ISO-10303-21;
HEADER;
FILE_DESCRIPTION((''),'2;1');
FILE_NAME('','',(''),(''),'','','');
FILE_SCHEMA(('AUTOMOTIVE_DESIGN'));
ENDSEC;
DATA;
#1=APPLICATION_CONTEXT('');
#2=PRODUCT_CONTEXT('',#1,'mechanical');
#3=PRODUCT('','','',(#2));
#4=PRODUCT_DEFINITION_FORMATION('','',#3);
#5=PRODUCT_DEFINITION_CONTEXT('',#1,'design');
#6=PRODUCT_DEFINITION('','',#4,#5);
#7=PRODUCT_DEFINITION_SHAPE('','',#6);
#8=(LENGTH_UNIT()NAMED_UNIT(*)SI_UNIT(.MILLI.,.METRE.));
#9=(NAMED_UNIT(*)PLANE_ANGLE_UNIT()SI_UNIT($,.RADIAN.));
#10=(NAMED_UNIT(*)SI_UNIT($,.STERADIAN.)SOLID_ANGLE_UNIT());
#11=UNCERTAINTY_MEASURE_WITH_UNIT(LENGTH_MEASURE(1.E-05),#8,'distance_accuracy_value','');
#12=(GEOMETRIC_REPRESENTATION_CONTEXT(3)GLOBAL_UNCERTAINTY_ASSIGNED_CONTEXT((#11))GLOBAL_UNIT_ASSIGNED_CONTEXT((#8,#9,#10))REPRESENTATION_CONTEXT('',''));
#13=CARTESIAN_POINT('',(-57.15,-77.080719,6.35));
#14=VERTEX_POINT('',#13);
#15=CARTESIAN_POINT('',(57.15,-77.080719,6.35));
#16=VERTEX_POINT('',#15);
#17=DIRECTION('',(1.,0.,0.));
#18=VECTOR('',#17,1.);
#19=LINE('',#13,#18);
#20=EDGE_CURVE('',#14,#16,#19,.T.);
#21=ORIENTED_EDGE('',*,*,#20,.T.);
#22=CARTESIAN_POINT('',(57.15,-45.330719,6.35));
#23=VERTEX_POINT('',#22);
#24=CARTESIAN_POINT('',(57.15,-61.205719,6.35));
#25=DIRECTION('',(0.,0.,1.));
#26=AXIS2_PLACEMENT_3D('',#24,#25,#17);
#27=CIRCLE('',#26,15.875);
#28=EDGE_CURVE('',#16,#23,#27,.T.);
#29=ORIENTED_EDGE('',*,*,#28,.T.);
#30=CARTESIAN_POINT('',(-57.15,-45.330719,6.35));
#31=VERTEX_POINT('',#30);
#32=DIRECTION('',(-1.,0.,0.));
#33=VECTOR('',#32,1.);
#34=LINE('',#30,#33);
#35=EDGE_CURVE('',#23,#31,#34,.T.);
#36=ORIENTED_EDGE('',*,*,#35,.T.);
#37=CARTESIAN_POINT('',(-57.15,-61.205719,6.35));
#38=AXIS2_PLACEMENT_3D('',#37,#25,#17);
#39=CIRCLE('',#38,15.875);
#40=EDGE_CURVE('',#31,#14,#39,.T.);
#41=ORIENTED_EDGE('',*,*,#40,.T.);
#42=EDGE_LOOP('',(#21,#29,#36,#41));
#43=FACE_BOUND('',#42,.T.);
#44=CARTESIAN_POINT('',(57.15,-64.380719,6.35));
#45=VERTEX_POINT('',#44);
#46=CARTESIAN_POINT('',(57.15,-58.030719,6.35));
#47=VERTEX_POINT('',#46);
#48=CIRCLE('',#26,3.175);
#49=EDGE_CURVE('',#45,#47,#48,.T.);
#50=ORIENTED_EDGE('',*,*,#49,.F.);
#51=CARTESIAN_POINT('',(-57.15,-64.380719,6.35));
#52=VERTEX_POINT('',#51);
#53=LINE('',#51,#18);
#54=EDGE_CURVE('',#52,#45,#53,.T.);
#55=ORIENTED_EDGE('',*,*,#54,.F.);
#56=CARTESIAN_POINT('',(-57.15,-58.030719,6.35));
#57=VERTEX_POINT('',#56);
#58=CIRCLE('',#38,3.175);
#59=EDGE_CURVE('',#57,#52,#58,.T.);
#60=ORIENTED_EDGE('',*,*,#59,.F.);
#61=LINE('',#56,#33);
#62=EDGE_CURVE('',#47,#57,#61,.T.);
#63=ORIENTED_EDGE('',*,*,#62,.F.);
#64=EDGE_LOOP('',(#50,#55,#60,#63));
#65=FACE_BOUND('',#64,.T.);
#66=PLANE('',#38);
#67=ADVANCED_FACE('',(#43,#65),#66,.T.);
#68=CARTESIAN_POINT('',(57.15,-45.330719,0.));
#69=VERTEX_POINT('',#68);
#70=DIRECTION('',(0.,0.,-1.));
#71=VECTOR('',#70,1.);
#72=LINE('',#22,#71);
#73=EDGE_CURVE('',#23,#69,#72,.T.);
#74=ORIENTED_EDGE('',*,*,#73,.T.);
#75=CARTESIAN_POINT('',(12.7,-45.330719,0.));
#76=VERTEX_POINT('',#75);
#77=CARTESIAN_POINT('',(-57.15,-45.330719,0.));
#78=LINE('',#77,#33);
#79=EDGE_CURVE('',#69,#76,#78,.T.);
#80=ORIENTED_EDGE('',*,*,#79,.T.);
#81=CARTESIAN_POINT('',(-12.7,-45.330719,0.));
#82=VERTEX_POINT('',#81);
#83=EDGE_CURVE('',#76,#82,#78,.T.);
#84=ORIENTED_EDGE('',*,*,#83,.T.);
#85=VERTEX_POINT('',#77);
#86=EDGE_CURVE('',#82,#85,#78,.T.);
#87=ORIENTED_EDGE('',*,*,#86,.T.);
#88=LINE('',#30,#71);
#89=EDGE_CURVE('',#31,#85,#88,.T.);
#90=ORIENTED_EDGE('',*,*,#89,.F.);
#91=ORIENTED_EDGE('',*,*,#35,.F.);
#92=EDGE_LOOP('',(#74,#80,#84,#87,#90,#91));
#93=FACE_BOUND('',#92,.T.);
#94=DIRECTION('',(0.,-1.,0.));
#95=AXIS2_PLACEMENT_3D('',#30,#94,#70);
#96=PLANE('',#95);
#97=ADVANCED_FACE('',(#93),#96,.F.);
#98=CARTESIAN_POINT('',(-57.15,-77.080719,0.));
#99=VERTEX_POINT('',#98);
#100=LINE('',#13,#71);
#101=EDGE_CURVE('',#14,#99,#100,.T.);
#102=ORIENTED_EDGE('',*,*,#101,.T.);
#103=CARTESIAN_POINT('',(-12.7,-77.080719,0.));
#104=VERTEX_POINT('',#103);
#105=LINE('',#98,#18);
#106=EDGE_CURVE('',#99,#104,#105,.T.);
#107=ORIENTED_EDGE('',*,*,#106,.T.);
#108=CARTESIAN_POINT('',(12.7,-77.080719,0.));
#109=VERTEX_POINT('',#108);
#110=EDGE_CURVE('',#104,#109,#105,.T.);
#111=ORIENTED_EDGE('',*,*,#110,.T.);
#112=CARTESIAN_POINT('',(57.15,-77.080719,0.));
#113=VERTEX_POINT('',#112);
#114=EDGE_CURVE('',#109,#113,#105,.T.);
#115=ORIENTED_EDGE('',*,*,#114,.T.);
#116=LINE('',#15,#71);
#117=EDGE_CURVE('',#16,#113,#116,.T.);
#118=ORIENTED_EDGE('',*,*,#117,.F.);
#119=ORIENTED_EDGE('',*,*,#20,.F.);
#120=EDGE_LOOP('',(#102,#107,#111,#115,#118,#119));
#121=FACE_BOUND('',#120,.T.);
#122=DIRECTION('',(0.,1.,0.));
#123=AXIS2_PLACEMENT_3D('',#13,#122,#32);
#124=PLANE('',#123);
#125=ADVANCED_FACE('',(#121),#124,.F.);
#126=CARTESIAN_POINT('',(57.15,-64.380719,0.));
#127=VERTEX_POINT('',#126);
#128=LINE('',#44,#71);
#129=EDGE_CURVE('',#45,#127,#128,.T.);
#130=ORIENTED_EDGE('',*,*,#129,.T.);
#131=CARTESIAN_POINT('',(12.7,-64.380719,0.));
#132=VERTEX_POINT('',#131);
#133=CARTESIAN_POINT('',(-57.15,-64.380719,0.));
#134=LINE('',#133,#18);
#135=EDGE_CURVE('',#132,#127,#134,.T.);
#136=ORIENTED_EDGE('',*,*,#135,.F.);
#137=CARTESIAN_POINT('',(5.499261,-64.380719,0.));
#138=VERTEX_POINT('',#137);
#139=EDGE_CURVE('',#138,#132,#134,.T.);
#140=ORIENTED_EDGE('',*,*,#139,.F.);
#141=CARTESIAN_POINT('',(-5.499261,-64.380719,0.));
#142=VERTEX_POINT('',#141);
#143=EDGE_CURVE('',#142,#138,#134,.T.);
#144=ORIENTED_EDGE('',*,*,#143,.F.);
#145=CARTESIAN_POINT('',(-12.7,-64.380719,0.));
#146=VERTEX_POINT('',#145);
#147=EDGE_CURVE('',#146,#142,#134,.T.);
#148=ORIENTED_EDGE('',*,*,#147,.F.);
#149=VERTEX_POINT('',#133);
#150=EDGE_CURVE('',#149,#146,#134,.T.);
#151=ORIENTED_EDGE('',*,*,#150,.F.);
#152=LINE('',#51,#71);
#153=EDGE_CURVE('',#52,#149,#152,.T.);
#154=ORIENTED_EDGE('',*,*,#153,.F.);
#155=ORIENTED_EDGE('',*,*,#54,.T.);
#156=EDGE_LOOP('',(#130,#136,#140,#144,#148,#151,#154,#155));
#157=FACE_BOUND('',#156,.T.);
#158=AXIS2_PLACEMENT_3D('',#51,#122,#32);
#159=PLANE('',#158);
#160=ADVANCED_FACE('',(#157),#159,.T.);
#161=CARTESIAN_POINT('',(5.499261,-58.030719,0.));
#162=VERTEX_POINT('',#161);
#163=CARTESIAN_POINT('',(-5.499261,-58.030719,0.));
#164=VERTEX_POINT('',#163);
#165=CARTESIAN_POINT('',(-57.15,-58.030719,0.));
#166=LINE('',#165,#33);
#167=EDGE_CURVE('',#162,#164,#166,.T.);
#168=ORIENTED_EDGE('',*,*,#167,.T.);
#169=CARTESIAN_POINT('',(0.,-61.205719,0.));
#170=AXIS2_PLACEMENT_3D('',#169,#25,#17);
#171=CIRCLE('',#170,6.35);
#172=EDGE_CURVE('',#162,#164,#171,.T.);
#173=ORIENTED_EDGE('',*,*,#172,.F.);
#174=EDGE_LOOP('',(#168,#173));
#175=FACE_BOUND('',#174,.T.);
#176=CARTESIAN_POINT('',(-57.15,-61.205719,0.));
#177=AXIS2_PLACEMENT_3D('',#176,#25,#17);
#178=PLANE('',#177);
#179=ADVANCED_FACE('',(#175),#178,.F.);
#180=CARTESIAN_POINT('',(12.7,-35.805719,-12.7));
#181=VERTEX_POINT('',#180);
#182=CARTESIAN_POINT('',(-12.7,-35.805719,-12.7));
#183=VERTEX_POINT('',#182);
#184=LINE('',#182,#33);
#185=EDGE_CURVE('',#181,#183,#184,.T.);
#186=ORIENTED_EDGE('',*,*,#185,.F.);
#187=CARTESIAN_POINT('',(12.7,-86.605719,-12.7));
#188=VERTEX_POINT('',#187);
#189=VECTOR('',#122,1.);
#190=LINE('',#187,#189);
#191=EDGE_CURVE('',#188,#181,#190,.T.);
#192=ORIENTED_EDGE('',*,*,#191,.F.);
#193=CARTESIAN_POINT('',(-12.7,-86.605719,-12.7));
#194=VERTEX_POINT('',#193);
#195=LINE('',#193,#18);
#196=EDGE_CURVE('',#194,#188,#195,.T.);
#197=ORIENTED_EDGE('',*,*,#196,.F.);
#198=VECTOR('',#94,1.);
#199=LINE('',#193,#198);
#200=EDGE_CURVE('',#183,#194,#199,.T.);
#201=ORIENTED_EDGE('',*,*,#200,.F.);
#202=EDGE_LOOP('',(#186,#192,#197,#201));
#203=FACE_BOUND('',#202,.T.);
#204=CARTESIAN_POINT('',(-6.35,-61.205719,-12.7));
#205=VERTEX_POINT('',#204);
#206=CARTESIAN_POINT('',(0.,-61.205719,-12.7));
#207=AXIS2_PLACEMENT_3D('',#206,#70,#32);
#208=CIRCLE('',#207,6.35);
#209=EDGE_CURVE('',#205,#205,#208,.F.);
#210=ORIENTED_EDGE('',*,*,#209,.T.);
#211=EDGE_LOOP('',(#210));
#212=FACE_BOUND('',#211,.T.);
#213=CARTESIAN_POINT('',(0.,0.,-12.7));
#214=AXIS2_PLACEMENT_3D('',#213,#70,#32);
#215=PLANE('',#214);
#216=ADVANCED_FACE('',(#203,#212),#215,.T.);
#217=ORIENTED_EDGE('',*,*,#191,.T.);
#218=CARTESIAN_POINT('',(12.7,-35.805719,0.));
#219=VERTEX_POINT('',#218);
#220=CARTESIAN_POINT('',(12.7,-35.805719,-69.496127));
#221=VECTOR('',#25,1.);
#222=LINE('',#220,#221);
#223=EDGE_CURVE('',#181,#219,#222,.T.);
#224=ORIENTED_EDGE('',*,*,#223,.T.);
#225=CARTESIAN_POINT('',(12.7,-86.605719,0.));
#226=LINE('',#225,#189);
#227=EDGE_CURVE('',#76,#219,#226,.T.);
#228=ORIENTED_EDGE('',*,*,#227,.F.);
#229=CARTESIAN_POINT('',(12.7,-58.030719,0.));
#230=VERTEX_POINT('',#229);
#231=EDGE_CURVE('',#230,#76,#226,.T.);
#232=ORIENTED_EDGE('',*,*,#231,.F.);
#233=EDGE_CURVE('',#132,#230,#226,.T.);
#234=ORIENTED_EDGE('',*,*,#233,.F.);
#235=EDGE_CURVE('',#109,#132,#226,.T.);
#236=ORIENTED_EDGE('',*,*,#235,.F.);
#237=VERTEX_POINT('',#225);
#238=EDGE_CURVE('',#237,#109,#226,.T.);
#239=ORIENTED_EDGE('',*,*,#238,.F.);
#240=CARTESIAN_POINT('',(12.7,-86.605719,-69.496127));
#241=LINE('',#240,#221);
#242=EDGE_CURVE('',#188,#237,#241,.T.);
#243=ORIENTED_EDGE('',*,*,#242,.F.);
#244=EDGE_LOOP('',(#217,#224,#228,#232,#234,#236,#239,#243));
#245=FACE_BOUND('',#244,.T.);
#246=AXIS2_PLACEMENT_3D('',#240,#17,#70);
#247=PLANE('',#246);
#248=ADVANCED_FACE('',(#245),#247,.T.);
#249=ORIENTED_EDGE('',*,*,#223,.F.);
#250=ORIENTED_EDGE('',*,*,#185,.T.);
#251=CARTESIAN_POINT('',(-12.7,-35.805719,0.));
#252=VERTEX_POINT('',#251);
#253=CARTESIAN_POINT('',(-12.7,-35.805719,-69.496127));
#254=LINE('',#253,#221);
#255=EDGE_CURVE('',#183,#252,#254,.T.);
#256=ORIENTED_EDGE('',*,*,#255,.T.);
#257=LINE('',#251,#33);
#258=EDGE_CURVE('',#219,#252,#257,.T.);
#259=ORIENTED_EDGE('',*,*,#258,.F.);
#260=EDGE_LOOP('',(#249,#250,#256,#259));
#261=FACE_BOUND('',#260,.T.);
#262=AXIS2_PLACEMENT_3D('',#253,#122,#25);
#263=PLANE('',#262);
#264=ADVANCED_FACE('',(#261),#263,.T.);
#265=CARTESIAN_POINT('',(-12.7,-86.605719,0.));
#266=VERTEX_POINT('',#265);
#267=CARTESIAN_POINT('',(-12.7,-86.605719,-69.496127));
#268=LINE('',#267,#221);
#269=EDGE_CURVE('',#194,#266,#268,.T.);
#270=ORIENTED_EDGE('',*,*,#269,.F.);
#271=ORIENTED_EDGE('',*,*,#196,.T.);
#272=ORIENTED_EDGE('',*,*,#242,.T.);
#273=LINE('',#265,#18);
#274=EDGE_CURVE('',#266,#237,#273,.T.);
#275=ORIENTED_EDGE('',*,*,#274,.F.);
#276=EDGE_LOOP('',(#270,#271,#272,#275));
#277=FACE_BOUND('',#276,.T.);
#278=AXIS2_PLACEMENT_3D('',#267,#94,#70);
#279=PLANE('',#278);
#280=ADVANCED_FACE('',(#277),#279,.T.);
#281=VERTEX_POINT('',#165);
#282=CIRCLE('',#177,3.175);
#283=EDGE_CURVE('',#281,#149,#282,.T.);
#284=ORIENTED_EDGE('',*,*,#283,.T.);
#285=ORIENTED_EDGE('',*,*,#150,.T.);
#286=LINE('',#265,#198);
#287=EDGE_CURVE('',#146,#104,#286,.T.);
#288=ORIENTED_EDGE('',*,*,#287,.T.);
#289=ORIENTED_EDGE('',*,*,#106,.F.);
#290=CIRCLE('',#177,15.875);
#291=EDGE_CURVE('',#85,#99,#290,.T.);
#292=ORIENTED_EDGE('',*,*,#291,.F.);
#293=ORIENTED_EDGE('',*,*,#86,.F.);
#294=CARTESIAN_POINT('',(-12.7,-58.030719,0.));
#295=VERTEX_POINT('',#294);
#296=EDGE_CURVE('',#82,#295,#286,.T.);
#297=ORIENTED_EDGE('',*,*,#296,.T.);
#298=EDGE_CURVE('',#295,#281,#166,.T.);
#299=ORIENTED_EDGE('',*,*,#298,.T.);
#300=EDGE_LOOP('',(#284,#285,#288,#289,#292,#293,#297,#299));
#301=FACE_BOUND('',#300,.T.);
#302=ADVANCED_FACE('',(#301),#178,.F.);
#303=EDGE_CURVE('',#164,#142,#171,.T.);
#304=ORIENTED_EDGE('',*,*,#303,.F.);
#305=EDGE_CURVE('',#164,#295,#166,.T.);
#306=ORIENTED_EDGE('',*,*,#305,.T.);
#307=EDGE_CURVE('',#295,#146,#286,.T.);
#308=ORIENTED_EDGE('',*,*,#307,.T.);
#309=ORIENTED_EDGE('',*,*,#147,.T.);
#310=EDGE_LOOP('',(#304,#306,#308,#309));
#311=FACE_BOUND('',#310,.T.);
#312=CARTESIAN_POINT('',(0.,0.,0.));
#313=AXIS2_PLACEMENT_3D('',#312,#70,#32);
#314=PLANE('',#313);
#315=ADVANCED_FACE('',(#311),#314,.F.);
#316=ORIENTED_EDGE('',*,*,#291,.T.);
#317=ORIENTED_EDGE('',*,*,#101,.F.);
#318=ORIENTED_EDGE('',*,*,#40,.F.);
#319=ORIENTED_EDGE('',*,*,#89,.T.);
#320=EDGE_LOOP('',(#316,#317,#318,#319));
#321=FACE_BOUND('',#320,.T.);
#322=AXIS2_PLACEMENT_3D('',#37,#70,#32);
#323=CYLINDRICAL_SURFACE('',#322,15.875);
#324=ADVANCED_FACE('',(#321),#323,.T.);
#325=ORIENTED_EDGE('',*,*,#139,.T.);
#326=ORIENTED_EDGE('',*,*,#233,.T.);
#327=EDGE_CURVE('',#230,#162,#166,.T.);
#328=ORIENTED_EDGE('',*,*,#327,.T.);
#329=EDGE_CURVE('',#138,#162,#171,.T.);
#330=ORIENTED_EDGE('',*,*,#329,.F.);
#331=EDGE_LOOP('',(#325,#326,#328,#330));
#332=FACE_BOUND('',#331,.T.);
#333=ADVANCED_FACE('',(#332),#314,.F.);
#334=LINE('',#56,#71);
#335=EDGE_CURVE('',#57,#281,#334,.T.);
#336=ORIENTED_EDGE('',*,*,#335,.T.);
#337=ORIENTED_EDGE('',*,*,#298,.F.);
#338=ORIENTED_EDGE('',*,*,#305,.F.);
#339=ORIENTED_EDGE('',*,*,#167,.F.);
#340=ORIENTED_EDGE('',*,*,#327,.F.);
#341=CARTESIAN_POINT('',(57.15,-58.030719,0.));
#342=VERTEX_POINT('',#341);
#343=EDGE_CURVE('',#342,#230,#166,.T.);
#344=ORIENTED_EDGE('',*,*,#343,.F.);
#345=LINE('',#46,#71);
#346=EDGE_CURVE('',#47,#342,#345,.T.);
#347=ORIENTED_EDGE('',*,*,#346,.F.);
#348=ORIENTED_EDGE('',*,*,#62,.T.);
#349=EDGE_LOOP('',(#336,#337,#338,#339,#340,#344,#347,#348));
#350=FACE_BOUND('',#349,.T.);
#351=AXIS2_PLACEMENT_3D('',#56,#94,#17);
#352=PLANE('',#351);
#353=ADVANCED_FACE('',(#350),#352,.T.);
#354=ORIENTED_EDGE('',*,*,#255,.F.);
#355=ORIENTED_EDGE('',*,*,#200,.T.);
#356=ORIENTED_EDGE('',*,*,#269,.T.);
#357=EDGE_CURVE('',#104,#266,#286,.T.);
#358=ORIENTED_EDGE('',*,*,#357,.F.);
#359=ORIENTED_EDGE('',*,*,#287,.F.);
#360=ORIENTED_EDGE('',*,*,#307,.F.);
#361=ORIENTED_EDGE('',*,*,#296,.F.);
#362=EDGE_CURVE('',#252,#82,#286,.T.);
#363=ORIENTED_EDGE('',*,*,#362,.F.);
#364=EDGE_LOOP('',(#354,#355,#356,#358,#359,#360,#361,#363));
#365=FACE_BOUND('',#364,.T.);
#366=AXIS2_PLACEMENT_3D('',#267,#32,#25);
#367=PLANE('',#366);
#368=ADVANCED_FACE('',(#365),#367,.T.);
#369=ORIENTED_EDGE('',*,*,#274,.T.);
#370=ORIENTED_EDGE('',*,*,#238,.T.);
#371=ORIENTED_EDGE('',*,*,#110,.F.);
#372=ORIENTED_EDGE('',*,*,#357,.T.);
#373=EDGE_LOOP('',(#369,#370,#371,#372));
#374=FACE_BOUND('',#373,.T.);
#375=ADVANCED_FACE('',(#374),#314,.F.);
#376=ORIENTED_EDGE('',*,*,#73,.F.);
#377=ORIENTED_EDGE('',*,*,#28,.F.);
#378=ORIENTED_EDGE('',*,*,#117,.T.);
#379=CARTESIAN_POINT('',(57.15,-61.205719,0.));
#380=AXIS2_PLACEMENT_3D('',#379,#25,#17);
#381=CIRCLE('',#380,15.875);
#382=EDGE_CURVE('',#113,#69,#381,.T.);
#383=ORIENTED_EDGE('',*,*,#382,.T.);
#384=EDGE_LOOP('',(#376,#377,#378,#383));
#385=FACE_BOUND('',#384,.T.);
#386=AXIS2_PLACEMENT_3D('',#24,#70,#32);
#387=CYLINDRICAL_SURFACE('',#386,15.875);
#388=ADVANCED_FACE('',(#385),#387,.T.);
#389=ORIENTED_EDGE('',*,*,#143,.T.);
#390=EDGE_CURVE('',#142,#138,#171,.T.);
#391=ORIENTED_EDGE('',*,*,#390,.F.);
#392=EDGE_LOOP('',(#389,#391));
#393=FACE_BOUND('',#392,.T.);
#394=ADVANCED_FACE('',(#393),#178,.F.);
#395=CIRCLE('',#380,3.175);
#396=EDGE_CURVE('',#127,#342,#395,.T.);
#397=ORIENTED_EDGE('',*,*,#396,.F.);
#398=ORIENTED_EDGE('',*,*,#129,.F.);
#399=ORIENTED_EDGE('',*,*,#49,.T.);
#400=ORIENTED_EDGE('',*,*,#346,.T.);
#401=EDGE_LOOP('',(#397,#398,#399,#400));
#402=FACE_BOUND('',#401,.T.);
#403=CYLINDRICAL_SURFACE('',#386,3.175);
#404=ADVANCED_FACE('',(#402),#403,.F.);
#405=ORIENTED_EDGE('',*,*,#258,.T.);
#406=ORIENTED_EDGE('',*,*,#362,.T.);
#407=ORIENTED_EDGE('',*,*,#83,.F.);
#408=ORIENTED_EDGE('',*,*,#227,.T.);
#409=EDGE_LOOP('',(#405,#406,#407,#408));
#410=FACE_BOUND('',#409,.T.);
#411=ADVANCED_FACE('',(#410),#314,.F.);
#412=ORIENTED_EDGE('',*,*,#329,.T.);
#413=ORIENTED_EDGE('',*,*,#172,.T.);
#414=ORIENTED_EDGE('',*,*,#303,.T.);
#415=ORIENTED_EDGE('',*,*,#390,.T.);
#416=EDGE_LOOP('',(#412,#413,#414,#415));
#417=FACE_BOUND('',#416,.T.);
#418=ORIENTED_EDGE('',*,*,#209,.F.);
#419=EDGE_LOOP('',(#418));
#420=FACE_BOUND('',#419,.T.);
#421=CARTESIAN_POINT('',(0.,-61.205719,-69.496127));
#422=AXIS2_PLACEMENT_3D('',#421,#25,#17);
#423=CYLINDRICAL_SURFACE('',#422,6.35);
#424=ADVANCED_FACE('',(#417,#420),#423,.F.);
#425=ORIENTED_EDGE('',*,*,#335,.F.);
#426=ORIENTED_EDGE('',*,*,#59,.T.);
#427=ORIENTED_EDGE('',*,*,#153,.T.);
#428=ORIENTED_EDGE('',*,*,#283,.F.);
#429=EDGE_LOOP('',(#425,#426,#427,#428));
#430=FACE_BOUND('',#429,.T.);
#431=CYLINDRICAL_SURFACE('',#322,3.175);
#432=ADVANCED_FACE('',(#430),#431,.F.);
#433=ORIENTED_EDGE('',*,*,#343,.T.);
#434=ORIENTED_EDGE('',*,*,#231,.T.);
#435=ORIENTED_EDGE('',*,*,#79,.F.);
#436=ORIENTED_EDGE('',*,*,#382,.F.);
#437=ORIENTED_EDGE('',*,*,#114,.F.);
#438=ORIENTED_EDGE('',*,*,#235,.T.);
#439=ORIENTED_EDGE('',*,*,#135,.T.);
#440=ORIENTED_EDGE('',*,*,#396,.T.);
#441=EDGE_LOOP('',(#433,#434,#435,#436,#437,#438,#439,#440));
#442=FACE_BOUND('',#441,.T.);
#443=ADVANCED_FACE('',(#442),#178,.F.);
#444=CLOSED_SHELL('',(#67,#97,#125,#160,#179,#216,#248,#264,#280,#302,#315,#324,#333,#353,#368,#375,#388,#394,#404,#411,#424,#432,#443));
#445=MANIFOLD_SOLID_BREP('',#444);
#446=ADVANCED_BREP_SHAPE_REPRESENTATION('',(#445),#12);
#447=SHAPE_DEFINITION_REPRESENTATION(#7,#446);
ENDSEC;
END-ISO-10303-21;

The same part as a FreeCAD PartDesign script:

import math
import FreeCAD as App
import Part
import Sketcher
from FreeCAD import Vector
Q = App.Units.Quantity


def add_polygon(sketch, points):
    """Adds a closed chain of lines whose ends are joined by coincident constraints."""
    first, n = sketch.GeometryCount, len(points)
    for a, b in zip(points, points[1:] + points[:1]):
        sketch.addGeometry(Part.LineSegment(App.Vector(*a, 0), App.Vector(*b, 0)), False)
    for i in range(n):
        sketch.addConstraint(Sketcher.Constraint("Coincident", first + i, 2, first + (i + 1) % n, 1))

doc = App.newDocument("Part")
body = doc.addObject("PartDesign::Body", "Body")

# Sketch on XY plane
sketch1 = body.newObject("Sketcher::SketchObject", "Sketch")
sketch1.AttachmentSupport = (doc.getObject("XY_Plane"), [""])
sketch1.MapMode = "FlatFace"
add_polygon(sketch1, [(-12.7, -35.805719), (-12.7, -86.605719), (12.7, -86.605719), (12.7, -35.805719)])  # lines 0-3
sketch1.addGeometry(Part.Circle(Vector(0, -61.205719, 0), Vector(0, 0, 1), 6.35), False)  # 4
sketch1.addConstraint(Sketcher.Constraint("Vertical", 0))
sketch1.addConstraint(Sketcher.Constraint("Horizontal", 1))
sketch1.addConstraint(Sketcher.Constraint("Vertical", 2))
sketch1.addConstraint(Sketcher.Constraint("Horizontal", 3))
sketch1.addConstraint(Sketcher.Constraint("PointOnObject", 4, 3, -2))
sketch1.addConstraint(Sketcher.Constraint("Diameter", 4, Q("0.5 in")))
sketch1.addConstraint(Sketcher.Constraint("DistanceX", 1, 1, 1, 2, Q("1 in")))
sketch1.addConstraint(Sketcher.Constraint("DistanceY", 0, 2, 0, 1, Q("2 in")))
sketch1.addConstraint(Sketcher.Constraint("DistanceY", 0, 2, 4, 3, Q("1 in")))
sketch1.addConstraint(Sketcher.Constraint("DistanceX", 0, 2, -1, 1, Q("0.5 in")))
sketch1.addConstraint(Sketcher.Constraint("DistanceY", 4, 3, -1, 1, Q("61.205719 mm")))
pad1 = body.newObject("PartDesign::Pad", "Pad")
pad1.Profile = sketch1
pad1.Length = Q("0.5 in")
pad1.Reversed = True

# Sketch on XY plane
sketch2 = body.newObject("Sketcher::SketchObject", "Sketch001")
sketch2.AttachmentSupport = (doc.getObject("XY_Plane"), [""])
sketch2.MapMode = "FlatFace"
sketch2.addGeometry(Part.LineSegment(Vector(57.15, -45.330719, 0), Vector(-57.15, -45.330719, 0)), False)
sketch2.addGeometry(Part.ArcOfCircle(Part.Circle(Vector(-57.15, -61.205719, 0), Vector(0, 0, 1), 15.875), math.radians(90), math.radians(270)), False)
sketch2.addGeometry(Part.LineSegment(Vector(-57.15, -77.080719, 0), Vector(57.15, -77.080719, 0)), False)
sketch2.addGeometry(Part.ArcOfCircle(Part.Circle(Vector(57.15, -61.205719, 0), Vector(0, 0, 1), 15.875), math.radians(-90), math.radians(90)), False)
sketch2.addGeometry(Part.LineSegment(Vector(-57.15, -58.030719, 0), Vector(57.15, -58.030719, 0)), False)
sketch2.addGeometry(Part.ArcOfCircle(Part.Circle(Vector(57.15, -61.205719, 0), Vector(0, 0, 1), 3.175), math.radians(-90), math.radians(90)), False)
sketch2.addGeometry(Part.LineSegment(Vector(57.15, -64.380719, 0), Vector(-57.15, -64.380719, 0)), False)
sketch2.addGeometry(Part.ArcOfCircle(Part.Circle(Vector(-57.15, -61.205719, 0), Vector(0, 0, 1), 3.175), math.radians(90), math.radians(270)), False)
sketch2.addConstraint(Sketcher.Constraint("Tangent", 0, 2, 1, 1))
sketch2.addConstraint(Sketcher.Constraint("Tangent", 1, 2, 2, 1))
sketch2.addConstraint(Sketcher.Constraint("Tangent", 2, 2, 3, 1))
sketch2.addConstraint(Sketcher.Constraint("Tangent", 3, 2, 0, 1))
sketch2.addConstraint(Sketcher.Constraint("Tangent", 4, 2, 5, 2))
sketch2.addConstraint(Sketcher.Constraint("Tangent", 5, 1, 6, 1))
sketch2.addConstraint(Sketcher.Constraint("Tangent", 6, 2, 7, 2))
sketch2.addConstraint(Sketcher.Constraint("Tangent", 7, 1, 4, 1))
sketch2.addConstraint(Sketcher.Constraint("Horizontal", 0))
sketch2.addConstraint(Sketcher.Constraint("Horizontal", 2))
sketch2.addConstraint(Sketcher.Constraint("Horizontal", 4))
sketch2.addConstraint(Sketcher.Constraint("Horizontal", 6))
sketch2.addConstraint(Sketcher.Constraint("Coincident", 5, 3, 3, 3))
sketch2.addConstraint(Sketcher.Constraint("Vertical", 7, 3, 0, 2))
sketch2.addConstraint(Sketcher.Constraint("DistanceX", 0, 2, 0, 1, Q("4.5 in")))
sketch2.addConstraint(Sketcher.Constraint("Radius", 1, Q("0.625 in")))
sketch2.addConstraint(Sketcher.Constraint("Radius", 5, Q("0.125 in")))
sketch2.addConstraint(Sketcher.Constraint("DistanceX", 1, 3, -1, 1, Q("2.25 in")))
sketch2.addConstraint(Sketcher.Constraint("DistanceY", 1, 3, -1, 1, Q("61.205719 mm")))
pad2 = body.newObject("PartDesign::Pad", "Pad001")
pad2.Profile = sketch2
pad2.Length = Q("0.25 in")

doc.recompute()
